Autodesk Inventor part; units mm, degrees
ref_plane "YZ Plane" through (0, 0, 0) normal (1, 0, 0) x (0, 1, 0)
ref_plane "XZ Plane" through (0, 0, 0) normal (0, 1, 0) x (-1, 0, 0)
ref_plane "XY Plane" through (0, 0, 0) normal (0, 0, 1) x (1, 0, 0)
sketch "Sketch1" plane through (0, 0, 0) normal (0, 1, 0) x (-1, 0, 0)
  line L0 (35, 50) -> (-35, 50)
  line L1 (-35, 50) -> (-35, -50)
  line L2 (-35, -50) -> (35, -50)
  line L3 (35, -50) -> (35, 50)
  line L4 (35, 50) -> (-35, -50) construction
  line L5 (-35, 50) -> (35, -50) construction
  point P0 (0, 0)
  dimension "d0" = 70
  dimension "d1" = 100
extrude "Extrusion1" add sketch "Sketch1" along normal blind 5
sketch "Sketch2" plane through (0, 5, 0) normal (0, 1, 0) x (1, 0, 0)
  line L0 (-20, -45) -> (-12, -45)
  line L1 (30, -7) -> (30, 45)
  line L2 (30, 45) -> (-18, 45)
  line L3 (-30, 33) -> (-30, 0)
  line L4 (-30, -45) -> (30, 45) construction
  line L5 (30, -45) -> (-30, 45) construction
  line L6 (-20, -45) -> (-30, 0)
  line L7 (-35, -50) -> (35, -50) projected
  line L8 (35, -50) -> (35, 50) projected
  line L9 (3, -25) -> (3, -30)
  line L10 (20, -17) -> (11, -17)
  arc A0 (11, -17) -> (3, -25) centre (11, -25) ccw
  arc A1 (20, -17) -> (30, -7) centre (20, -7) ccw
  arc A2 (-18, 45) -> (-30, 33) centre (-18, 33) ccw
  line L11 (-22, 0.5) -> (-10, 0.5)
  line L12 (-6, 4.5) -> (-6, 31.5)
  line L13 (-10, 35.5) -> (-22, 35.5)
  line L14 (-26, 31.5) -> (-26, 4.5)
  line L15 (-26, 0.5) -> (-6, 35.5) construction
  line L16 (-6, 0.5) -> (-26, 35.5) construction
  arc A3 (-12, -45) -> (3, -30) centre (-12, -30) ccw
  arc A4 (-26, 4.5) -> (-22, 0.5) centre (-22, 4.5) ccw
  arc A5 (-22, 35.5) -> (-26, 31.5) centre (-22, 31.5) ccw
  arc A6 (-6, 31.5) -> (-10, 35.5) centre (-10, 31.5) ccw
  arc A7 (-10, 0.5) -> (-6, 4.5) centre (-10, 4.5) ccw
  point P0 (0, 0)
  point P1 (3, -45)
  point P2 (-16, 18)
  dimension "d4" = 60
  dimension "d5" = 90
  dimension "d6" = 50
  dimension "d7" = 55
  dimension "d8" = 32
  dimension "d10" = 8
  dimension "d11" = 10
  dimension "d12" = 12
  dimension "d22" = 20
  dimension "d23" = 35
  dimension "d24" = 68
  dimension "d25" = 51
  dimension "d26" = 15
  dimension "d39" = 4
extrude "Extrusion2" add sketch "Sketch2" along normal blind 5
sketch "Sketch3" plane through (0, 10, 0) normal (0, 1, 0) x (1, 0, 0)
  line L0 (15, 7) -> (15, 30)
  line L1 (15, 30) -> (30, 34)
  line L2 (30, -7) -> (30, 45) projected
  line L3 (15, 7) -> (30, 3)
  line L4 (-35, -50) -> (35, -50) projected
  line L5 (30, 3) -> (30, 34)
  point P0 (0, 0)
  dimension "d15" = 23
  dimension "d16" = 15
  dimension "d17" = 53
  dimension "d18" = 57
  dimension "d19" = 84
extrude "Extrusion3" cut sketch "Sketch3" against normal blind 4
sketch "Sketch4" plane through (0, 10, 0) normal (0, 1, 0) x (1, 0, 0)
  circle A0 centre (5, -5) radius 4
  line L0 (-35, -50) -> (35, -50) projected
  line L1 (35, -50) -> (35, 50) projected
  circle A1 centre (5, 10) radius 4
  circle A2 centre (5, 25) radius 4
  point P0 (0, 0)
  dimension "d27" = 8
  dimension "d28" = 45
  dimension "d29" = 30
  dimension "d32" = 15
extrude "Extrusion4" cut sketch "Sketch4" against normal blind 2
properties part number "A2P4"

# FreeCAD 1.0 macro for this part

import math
import FreeCAD as App
import Part
import Sketcher

V = App.Vector
Q = App.Units.Quantity


def add_polygon(sketch, points):
    """Adds a closed chain of lines whose ends are joined by coincident constraints."""
    first, n = sketch.GeometryCount, len(points)
    for a, b in zip(points, points[1:] + points[:1]):
        sketch.addGeometry(Part.LineSegment(App.Vector(*a, 0), App.Vector(*b, 0)), False)
    for i in range(n):
        sketch.addConstraint(Sketcher.Constraint("Coincident", first + i, 2, first + (i + 1) % n, 1))

doc = App.newDocument("Part")
body = doc.addObject("PartDesign::Body", "Body")

# Sketch on XZ plane
sketch1 = doc.addObject("Sketcher::SketchObject", "Sketch")
body.addObject(sketch1)
sketch1.AttachmentSupport = (doc.XZ_Plane, [""])
sketch1.MapMode = "FlatFace"
add_polygon(sketch1, [(-35, -50), (-35, 50), (35, 50), (35, -50)])  # lines 0-3
sketch1.addConstraint(Sketcher.Constraint("Vertical", 0))
sketch1.addConstraint(Sketcher.Constraint("Horizontal", 1))
sketch1.addConstraint(Sketcher.Constraint("Vertical", 2))
sketch1.addConstraint(Sketcher.Constraint("Horizontal", 3))
sketch1.addConstraint(Sketcher.Constraint("Symmetric", 0, 2, 2, 2, -1, 1))
sketch1.addConstraint(Sketcher.Constraint("DistanceX", 1, 1, 1, 2, Q("70 mm")))
sketch1.addConstraint(Sketcher.Constraint("DistanceY", 0, 1, 0, 2, Q("100 mm")))
pad1 = doc.addObject("PartDesign::Pad", "Pad")
body.addObject(pad1)
pad1.Profile = sketch1
pad1.Length = 5
pad1.Reversed = True

# Sketch on XZ plane
sketch2 = doc.addObject("Sketcher::SketchObject", "Sketch001")
body.addObject(sketch2)
sketch2.AttachmentSupport = (doc.XZ_Plane, [""])
sketch2.MapMode = "FlatFace"
sketch2.AttachmentOffset = App.Placement(V(0, 0, -5), App.Rotation())
sketch2.addGeometry(Part.LineSegment(V(-30, 0, 0), V(-20, 45, 0)), False)
sketch2.addGeometry(Part.LineSegment(V(-20, 45, 0), V(-12, 45, 0)), False)
sketch2.addGeometry(Part.ArcOfCircle(Part.Circle(V(-12, 30, 0), V(0, 0, 1), 15), math.radians(0), math.radians(90)), False)
sketch2.addGeometry(Part.LineSegment(V(3, 30, 0), V(3, 25, 0)), False)
sketch2.addGeometry(Part.ArcOfCircle(Part.Circle(V(11, 25, 0), V(0, 0, 1), 8), math.radians(180), math.radians(270)), False)
sketch2.addGeometry(Part.LineSegment(V(11, 17, 0), V(20, 17, 0)), False)
sketch2.addGeometry(Part.ArcOfCircle(Part.Circle(V(20, 7, 0), V(0, 0, 1), 10), math.radians(0), math.radians(90)), False)
sketch2.addGeometry(Part.LineSegment(V(30, 7, 0), V(30, -45, 0)), False)
sketch2.addGeometry(Part.LineSegment(V(30, -45, 0), V(-18, -45, 0)), False)
sketch2.addGeometry(Part.ArcOfCircle(Part.Circle(V(-18, -33, 0), V(0, 0, 1), 12), math.radians(180), math.radians(270)), False)
sketch2.addGeometry(Part.LineSegment(V(-30, -33, 0), V(-30, 0, 0)), False)
sketch2.addGeometry(Part.LineSegment(V(-10, -0.5, 0), V(-22, -0.5, 0)), False)
sketch2.addGeometry(Part.ArcOfCircle(Part.Circle(V(-22, -4.5, 0), V(0, 0, 1), 4), math.radians(90), math.radians(180)), False)
sketch2.addGeometry(Part.LineSegment(V(-26, -4.5, 0), V(-26, -31.5, 0)), False)
sketch2.addGeometry(Part.ArcOfCircle(Part.Circle(V(-22, -31.5, 0), V(0, 0, 1), 4), math.radians(180), math.radians(270)), False)
sketch2.addGeometry(Part.LineSegment(V(-22, -35.5, 0), V(-10, -35.5, 0)), False)
sketch2.addGeometry(Part.ArcOfCircle(Part.Circle(V(-10, -31.5, 0), V(0, 0, 1), 4), math.radians(-90), math.radians(0)), False)
sketch2.addGeometry(Part.LineSegment(V(-6, -31.5, 0), V(-6, -4.5, 0)), False)
sketch2.addGeometry(Part.ArcOfCircle(Part.Circle(V(-10, -4.5, 0), V(0, 0, 1), 4), math.radians(0), math.radians(90)), False)
sketch2.addConstraint(Sketcher.Constraint("Coincident", 0, 2, 1, 1))
sketch2.addConstraint(Sketcher.Constraint("Tangent", 1, 2, 2, 2))
sketch2.addConstraint(Sketcher.Constraint("Tangent", 2, 1, 3, 1))
sketch2.addConstraint(Sketcher.Constraint("Tangent", 3, 2, 4, 1))
sketch2.addConstraint(Sketcher.Constraint("Tangent", 4, 2, 5, 1))
sketch2.addConstraint(Sketcher.Constraint("Tangent", 5, 2, 6, 2))
sketch2.addConstraint(Sketcher.Constraint("Tangent", 6, 1, 7, 1))
sketch2.addConstraint(Sketcher.Constraint("Coincident", 7, 2, 8, 1))
sketch2.addConstraint(Sketcher.Constraint("Tangent", 8, 2, 9, 2))
sketch2.addConstraint(Sketcher.Constraint("Tangent", 9, 1, 10, 1))
sketch2.addConstraint(Sketcher.Constraint("Coincident", 10, 2, 0, 1))
sketch2.addConstraint(Sketcher.Constraint("Tangent", 11, 2, 12, 1))
sketch2.addConstraint(Sketcher.Constraint("Tangent", 12, 2, 13, 1))
sketch2.addConstraint(Sketcher.Constraint("Tangent", 13, 2, 14, 1))
sketch2.addConstraint(Sketcher.Constraint("Tangent", 14, 2, 15, 1))
sketch2.addConstraint(Sketcher.Constraint("Tangent", 15, 2, 16, 1))
sketch2.addConstraint(Sketcher.Constraint("Tangent", 16, 2, 17, 1))
sketch2.addConstraint(Sketcher.Constraint("Tangent", 17, 2, 18, 1))
sketch2.addConstraint(Sketcher.Constraint("Tangent", 18, 2, 11, 1))
sketch2.addConstraint(Sketcher.Constraint("Horizontal", 1))
sketch2.addConstraint(Sketcher.Constraint("Vertical", 3))
sketch2.addConstraint(Sketcher.Constraint("Horizontal", 5))
sketch2.addConstraint(Sketcher.Constraint("Vertical", 7))
sketch2.addConstraint(Sketcher.Constraint("Horizontal", 8))
sketch2.addConstraint(Sketcher.Constraint("Vertical", 10))
sketch2.addConstraint(Sketcher.Constraint("Horizontal", 11))
sketch2.addConstraint(Sketcher.Constraint("Vertical", 13))
sketch2.addConstraint(Sketcher.Constraint("Horizontal", 15))
sketch2.addConstraint(Sketcher.Constraint("Vertical", 17))
sketch2.addConstraint(Sketcher.Constraint("Equal", 12, 14))
sketch2.addConstraint(Sketcher.Constraint("Equal", 14, 16))
sketch2.addConstraint(Sketcher.Constraint("Equal", 16, 18))
sketch2.addConstraint(Sketcher.Constraint("PointOnObject", 10, 2, -1))
sketch2.addConstraint(Sketcher.Constraint("Radius", 2, Q("15 mm")))
sketch2.addConstraint(Sketcher.Constraint("Radius", 4, Q("8 mm")))
sketch2.addConstraint(Sketcher.Constraint("Radius", 6, Q("10 mm")))
sketch2.addConstraint(Sketcher.Constraint("Radius", 9, Q("12 mm")))
sketch2.addConstraint(Sketcher.Constraint("Radius", 12, Q("4 mm")))
sketch2.addConstraint(Sketcher.Constraint("DistanceX", 1, 1, 1, 2, Q("8 mm")))
sketch2.addConstraint(Sketcher.Constraint("DistanceX", 11, 2, 11, 1, Q("12 mm")))
sketch2.addConstraint(Sketcher.Constraint("DistanceX", 2, 3, -1, 1, Q("12 mm")))
sketch2.addConstraint(Sketcher.Constraint("DistanceX", -1, 1, 6, 3, Q("20 mm")))
sketch2.addConstraint(Sketcher.Constraint("DistanceX", 16, 3, -1, 1, Q("10 mm")))
sketch2.addConstraint(Sketcher.Constraint("DistanceX", 12, 3, 9, 3, Q("4 mm")))
sketch2.addConstraint(Sketcher.Constraint("DistanceY", 4, 3, 0, 2, Q("20 mm")))
sketch2.addConstraint(Sketcher.Constraint("DistanceY", 7, 2, 7, 1, Q("52 mm")))
sketch2.addConstraint(Sketcher.Constraint("DistanceY", 10, 1, 10, 2, Q("33 mm")))
sketch2.addConstraint(Sketcher.Constraint("DistanceY", 13, 2, 13, 1, Q("27 mm")))
sketch2.addConstraint(Sketcher.Constraint("DistanceY", 12, 3, -1, 1, Q("4.5 mm")))
pad2 = doc.addObject("PartDesign::Pad", "Pad001")
body.addObject(pad2)
pad2.Profile = sketch2
pad2.Length = 5
pad2.Reversed = True

# Sketch on XZ plane
sketch3 = doc.addObject("Sketcher::SketchObject", "Sketch002")
body.addObject(sketch3)
sketch3.AttachmentSupport = (doc.XZ_Plane, [""])
sketch3.MapMode = "FlatFace"
sketch3.AttachmentOffset = App.Placement(V(0, 0, -10), App.Rotation())
add_polygon(sketch3, [(15, -30), (15, -7), (30, -3), (30, -34)])  # lines 0-3
sketch3.addConstraint(Sketcher.Constraint("Vertical", 0))
sketch3.addConstraint(Sketcher.Constraint("Vertical", 2))
sketch3.addConstraint(Sketcher.Constraint("Equal", 1, 3))
sketch3.addConstraint(Sketcher.Constraint("DistanceY", 0, 1, 0, 2, Q("23 mm")))
sketch3.addConstraint(Sketcher.Constraint("DistanceX", -1, 1, 0, 2, Q("15 mm")))
sketch3.addConstraint(Sketcher.Constraint("DistanceX", 0, 2, 1, 2, Q("15 mm")))
sketch3.addConstraint(Sketcher.Constraint("DistanceY", 2, 2, 2, 1, Q("31 mm")))
sketch3.addConstraint(Sketcher.Constraint("DistanceY", 0, 2, -1, 1, Q("7 mm")))
pocket1 = doc.addObject("PartDesign::Pocket", "Pocket")
body.addObject(pocket1)
pocket1.Profile = sketch3
pocket1.Length = 4
pocket1.Reversed = True

# Sketch on XZ plane
sketch4 = doc.addObject("Sketcher::SketchObject", "Sketch003")
body.addObject(sketch4)
sketch4.AttachmentSupport = (doc.XZ_Plane, [""])
sketch4.MapMode = "FlatFace"
sketch4.AttachmentOffset = App.Placement(V(0, 0, -10), App.Rotation())
sketch4.addGeometry(Part.Circle(V(5, 5, 0), V(0, 0, 1), 4), False)
sketch4.addGeometry(Part.Circle(V(5, -10, 0), V(0, 0, 1), 4), False)
sketch4.addGeometry(Part.Circle(V(5, -25, 0), V(0, 0, 1), 4), False)
sketch4.addConstraint(Sketcher.Constraint("Equal", 0, 1))
sketch4.addConstraint(Sketcher.Constraint("Equal", 1, 2))
sketch4.addConstraint(Sketcher.Constraint("Vertical", 0, 3, 1, 3))
sketch4.addConstraint(Sketcher.Constraint("Vertical", 1, 3, 2, 3))
sketch4.addConstraint(Sketcher.Constraint("Diameter", 0, Q("8 mm")))
sketch4.addConstraint(Sketcher.Constraint("DistanceY", 1, 3, -1, 1, Q("10 mm")))
sketch4.addConstraint(Sketcher.Constraint("DistanceY", 1, 3, 0, 3, Q("15 mm")))
sketch4.addConstraint(Sketcher.Constraint("DistanceY", 2, 3, 1, 3, Q("15 mm")))
sketch4.addConstraint(Sketcher.Constraint("DistanceX", -1, 1, 0, 3, Q("5 mm")))
pocket2 = doc.addObject("PartDesign::Pocket", "Pocket001")
body.addObject(pocket2)
pocket2.Profile = sketch4
pocket2.Length = 2
pocket2.Reversed = True

doc.recompute()
